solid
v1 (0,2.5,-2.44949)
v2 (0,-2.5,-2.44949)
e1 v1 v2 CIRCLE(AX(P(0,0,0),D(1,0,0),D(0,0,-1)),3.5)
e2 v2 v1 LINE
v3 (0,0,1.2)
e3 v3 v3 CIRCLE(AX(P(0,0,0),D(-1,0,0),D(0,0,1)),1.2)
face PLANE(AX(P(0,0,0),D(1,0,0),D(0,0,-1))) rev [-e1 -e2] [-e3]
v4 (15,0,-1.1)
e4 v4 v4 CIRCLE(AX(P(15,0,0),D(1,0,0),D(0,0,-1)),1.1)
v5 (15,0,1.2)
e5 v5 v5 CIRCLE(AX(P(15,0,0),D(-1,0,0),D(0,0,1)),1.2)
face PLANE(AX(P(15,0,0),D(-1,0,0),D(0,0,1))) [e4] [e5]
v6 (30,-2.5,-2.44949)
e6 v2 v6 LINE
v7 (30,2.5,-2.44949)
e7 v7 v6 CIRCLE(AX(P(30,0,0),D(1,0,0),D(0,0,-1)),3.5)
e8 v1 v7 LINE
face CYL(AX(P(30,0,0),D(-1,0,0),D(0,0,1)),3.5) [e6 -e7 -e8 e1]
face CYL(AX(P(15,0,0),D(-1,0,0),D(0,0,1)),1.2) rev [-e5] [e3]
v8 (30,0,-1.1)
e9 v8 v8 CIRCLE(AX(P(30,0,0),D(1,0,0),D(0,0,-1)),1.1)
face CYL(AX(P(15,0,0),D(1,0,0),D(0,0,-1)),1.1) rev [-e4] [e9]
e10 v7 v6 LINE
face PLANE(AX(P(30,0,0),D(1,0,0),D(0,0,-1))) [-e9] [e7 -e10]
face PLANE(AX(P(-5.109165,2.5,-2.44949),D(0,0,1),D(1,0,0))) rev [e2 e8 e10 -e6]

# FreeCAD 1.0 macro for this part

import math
import FreeCAD as App
import Part
import Sketcher

doc = App.newDocument("Part")
params = doc.addObject("Spreadsheet::Sheet", "Params")
for row, (alias, value) in enumerate([
    ("sketch1_diameter", "7 mm"),
    ("pad1_length", "30 mm"),
    ("sketch2_diameter", "2.4 mm"),
    ("pocket1_length", "15 mm"),
    ("sketch3_diameter", "2.2 mm"),
    ("pocket2_length", "15 mm"),
    ("sketch4_radius", "3.5 mm"),
    ("sketch4_width", "5 mm"),
    ("pocket3_length", "30 mm"),
], start=1):
    params.set(f"A{row}", alias)
    params.set(f"B{row}", "=" + value)
    params.setAlias(f"B{row}", alias)

body = doc.addObject("PartDesign::Body", "Body")

# Sketch on YZ plane
sketch1 = body.newObject("Sketcher::SketchObject", "Sketch")
sketch1.AttachmentSupport = (doc.getObject("YZ_Plane"), [""])
sketch1.MapMode = "FlatFace"
sketch1.addGeometry(Part.Circle(App.Vector(0, 0, 0), App.Vector(0, 0, 1), 3.5), False)
sketch1.addConstraint([
    Sketcher.Constraint("Coincident", 0, 3, -1, 1),
    Sketcher.Constraint("Diameter", 0, 7.0),
])
sketch1.setExpression("Constraints[1]", "Params.sketch1_diameter")
pad1 = body.newObject("PartDesign::Pad", "Pad")
pad1.Profile = sketch1
pad1.setExpression("Length", "Params.pad1_length")

# Sketch on YZ plane
sketch2 = body.newObject("Sketcher::SketchObject", "Sketch001")
sketch2.AttachmentSupport = (doc.getObject("YZ_Plane"), [""])
sketch2.MapMode = "FlatFace"
sketch2.addGeometry(Part.Circle(App.Vector(0, 0, 0), App.Vector(0, 0, 1), 1.2), False)
sketch2.addConstraint([
    Sketcher.Constraint("Coincident", 0, 3, -1, 1),
    Sketcher.Constraint("Diameter", 0, 2.4),
])
sketch2.setExpression("Constraints[1]", "Params.sketch2_diameter")
pocket1 = body.newObject("PartDesign::Pocket", "Pocket")
pocket1.Profile = sketch2
pocket1.setExpression("Length", "Params.pocket1_length")
pocket1.Reversed = True

# Sketch on YZ plane
sketch3 = body.newObject("Sketcher::SketchObject", "Sketch002")
sketch3.AttachmentSupport = (doc.getObject("YZ_Plane"), [""])
sketch3.MapMode = "FlatFace"
sketch3.AttachmentOffset = App.Placement(App.Vector(0, 0, 30), App.Rotation())
sketch3.addGeometry(Part.Circle(App.Vector(0, 0, 0), App.Vector(0, 0, 1), 1.1), False)
sketch3.addConstraint([
    Sketcher.Constraint("Coincident", 0, 3, -1, 1),
    Sketcher.Constraint("Diameter", 0, 2.2),
])
sketch3.setExpression("Constraints[1]", "Params.sketch3_diameter")
pocket2 = body.newObject("PartDesign::Pocket", "Pocket001")
pocket2.Profile = sketch3
pocket2.setExpression("Length", "Params.pocket2_length")

# Sketch on YZ plane
sketch4 = body.newObject("Sketcher::SketchObject", "Sketch003")
sketch4.AttachmentSupport = (doc.getObject("YZ_Plane"), [""])
sketch4.MapMode = "FlatFace"
sketch4.addGeometry([
    Part.LineSegment(App.Vector(2.5, -2.44949, 0), App.Vector(-2.5, -2.44949, 0)),
    Part.ArcOfCircle(Part.Circle(App.Vector(0, 0, 0), App.Vector(0, 0, 1), 3.5), math.radians(-135.584691), math.radians(-44.415309)),
], False)
sketch4.addConstraint([
    Sketcher.Constraint("Coincident", 0, 1, 1, 2),
    Sketcher.Constraint("Coincident", 1, 1, 0, 2),
    Sketcher.Constraint("Horizontal", 0),
    Sketcher.Constraint("Coincident", 1, 3, -1, 1),
    Sketcher.Constraint("Radius", 1, 3.5),
    Sketcher.Constraint("DistanceX", 0, 2, 0, 1, 5.0),
])
sketch4.setExpression("Constraints[4]", "Params.sketch4_radius")
sketch4.setExpression("Constraints[5]", "Params.sketch4_width")
pocket3 = body.newObject("PartDesign::Pocket", "Pocket002")
pocket3.Profile = sketch4
pocket3.setExpression("Length", "Params.pocket3_length")
pocket3.Reversed = True

doc.recompute()
